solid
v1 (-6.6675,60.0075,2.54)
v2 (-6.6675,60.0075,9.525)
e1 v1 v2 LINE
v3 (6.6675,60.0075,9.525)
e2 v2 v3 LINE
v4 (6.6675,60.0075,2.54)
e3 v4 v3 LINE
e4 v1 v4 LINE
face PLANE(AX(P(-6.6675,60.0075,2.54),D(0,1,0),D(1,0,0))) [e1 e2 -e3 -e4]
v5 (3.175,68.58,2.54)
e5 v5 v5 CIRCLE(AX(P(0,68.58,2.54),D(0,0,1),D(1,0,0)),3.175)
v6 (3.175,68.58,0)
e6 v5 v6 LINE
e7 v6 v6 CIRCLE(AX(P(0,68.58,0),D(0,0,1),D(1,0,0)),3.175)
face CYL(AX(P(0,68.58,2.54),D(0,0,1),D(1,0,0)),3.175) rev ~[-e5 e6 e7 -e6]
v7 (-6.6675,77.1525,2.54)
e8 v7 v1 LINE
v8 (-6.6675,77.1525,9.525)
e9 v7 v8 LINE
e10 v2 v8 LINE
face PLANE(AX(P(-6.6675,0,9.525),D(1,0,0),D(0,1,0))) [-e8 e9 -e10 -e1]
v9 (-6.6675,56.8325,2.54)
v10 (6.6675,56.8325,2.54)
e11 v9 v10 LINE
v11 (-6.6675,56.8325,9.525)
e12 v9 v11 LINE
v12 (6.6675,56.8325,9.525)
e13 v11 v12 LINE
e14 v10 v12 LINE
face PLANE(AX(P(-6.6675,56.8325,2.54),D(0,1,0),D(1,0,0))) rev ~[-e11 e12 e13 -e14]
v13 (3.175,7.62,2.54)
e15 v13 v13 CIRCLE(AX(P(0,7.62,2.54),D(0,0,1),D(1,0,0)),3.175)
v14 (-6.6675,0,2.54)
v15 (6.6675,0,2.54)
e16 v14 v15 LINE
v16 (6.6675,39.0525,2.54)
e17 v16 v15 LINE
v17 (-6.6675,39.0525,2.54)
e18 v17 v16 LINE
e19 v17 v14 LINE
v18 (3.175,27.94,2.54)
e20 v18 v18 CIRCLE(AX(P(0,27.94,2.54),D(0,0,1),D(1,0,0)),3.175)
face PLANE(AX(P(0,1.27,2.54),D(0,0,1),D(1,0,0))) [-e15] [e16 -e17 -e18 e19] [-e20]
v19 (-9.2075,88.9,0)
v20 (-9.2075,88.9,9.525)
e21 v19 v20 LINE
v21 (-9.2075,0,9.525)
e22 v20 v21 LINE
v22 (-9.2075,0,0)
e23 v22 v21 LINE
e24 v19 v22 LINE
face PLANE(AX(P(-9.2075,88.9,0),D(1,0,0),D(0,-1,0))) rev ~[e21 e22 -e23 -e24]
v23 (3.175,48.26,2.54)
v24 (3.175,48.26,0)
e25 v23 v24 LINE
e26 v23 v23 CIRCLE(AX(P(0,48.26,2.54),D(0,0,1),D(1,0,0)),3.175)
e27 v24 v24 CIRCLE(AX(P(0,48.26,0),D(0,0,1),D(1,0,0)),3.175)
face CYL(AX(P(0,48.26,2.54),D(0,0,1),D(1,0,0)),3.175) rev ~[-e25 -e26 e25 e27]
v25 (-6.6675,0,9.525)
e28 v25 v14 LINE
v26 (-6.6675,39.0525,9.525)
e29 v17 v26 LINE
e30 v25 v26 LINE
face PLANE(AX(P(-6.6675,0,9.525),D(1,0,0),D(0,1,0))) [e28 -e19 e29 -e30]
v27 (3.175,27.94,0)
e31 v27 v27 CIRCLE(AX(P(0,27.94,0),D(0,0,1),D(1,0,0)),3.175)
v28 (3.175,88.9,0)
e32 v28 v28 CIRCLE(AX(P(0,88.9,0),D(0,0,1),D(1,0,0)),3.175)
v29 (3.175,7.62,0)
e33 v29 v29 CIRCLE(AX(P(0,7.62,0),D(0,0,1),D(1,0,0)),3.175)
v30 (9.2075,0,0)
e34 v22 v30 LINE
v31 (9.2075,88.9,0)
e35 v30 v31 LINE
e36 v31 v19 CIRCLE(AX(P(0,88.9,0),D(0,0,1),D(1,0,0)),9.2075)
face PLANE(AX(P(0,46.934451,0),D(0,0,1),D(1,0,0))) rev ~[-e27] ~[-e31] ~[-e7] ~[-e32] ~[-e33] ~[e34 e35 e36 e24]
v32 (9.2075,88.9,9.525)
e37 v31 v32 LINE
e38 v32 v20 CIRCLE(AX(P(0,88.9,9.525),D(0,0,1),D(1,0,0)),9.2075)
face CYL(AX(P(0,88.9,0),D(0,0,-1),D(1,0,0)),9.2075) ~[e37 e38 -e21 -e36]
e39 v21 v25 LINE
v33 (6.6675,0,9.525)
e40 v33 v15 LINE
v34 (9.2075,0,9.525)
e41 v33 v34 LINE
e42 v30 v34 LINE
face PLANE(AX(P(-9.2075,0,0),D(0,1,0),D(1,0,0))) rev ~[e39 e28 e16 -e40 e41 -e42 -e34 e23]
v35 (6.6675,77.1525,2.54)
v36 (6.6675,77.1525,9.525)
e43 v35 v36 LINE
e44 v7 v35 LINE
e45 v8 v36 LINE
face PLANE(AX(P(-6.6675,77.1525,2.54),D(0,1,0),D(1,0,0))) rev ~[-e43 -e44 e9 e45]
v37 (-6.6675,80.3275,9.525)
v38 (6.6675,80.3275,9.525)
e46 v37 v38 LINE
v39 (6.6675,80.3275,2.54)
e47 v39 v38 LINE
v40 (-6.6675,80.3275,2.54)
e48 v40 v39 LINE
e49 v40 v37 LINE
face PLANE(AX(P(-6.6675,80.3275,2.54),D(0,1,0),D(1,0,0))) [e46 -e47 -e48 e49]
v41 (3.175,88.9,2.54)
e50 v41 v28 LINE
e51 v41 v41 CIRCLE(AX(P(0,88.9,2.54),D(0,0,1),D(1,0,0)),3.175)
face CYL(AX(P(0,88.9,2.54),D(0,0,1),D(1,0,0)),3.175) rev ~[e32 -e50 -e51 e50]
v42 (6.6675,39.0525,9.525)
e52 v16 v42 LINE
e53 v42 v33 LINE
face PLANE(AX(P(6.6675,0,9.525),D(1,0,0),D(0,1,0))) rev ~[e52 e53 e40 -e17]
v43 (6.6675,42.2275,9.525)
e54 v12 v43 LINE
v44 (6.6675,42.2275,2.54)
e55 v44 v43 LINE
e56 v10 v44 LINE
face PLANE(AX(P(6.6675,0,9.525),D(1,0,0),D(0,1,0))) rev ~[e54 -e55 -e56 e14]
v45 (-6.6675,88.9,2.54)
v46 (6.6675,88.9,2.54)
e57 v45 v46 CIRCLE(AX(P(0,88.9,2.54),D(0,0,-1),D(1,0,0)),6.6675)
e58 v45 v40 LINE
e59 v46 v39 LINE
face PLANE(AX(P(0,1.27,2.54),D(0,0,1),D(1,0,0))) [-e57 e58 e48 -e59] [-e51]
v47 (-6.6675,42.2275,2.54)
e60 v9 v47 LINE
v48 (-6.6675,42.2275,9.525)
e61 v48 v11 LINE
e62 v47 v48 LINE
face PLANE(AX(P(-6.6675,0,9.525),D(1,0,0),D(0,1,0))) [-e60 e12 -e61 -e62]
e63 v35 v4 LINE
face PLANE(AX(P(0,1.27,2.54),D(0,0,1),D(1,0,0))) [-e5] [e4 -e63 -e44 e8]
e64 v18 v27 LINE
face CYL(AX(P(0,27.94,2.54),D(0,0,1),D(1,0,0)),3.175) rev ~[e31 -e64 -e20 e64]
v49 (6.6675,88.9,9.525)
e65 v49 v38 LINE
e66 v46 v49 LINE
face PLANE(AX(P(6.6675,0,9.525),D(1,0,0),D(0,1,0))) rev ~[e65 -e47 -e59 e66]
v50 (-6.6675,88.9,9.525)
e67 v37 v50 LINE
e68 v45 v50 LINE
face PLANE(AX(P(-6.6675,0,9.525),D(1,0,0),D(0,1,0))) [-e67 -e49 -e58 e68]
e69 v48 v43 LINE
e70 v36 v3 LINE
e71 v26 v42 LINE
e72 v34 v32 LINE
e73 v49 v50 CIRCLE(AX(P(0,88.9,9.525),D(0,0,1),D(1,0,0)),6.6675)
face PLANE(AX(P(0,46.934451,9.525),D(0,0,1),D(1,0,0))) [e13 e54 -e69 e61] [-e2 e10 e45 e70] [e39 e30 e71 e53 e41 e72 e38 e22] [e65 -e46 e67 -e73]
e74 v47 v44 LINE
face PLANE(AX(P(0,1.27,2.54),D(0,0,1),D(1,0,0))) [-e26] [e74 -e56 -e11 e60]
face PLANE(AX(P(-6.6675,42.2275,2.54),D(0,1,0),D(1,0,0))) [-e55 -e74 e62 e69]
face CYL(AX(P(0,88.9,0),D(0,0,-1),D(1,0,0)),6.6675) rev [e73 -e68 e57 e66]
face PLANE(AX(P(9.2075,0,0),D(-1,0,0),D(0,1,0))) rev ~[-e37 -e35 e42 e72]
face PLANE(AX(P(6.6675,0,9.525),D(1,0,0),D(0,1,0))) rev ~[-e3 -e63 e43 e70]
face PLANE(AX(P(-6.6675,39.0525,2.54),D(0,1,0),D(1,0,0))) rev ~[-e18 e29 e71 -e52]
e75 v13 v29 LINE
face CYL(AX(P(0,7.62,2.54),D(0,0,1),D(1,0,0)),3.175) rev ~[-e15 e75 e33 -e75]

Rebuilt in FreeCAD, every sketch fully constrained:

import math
import FreeCAD as App
import Part
import Sketcher
from FreeCAD import Vector
Q = App.Units.Quantity


def faces_at(feature, points):
    """Names of the faces that lie closest to the given points."""
    faces = feature.Shape.Faces
    near = lambda p: min(range(len(faces)), key=lambda i: faces[i].distToShape(Part.Vertex(*p))[0])
    return sorted({f"Face{near(p) + 1}" for p in points})


def add_polygon(sketch, points):
    """Adds a closed chain of lines whose ends are joined by coincident constraints."""
    first, n = sketch.GeometryCount, len(points)
    for a, b in zip(points, points[1:] + points[:1]):
        sketch.addGeometry(Part.LineSegment(App.Vector(*a, 0), App.Vector(*b, 0)), False)
    for i in range(n):
        sketch.addConstraint(Sketcher.Constraint("Coincident", first + i, 2, first + (i + 1) % n, 1))

doc = App.newDocument("Part")
body = doc.addObject("PartDesign::Body", "Body")

sketch1 = body.newObject("Sketcher::SketchObject", "Sketch")
sketch1.AttachmentSupport = (doc.getObject("XY_Plane"), [""])
sketch1.MapMode = "FlatFace"
sketch1.addGeometry(Part.LineSegment(Vector(-9, 89, 0), Vector(-9, 0, 0)), False)
sketch1.addGeometry(Part.LineSegment(Vector(-9, 0, 0), Vector(9, 0, 0)), False)
sketch1.addGeometry(Part.LineSegment(Vector(9, 0, 0), Vector(9, 89, 0)), False)
sketch1.addGeometry(Part.ArcOfCircle(Part.Circle(Vector(0, 89, 0), Vector(0, 0, 1), 9), math.radians(0), math.radians(180)), False)
sketch1.addConstraint(Sketcher.Constraint("Coincident", 0, 2, 1, 1))
sketch1.addConstraint(Sketcher.Constraint("Coincident", 1, 2, 2, 1))
sketch1.addConstraint(Sketcher.Constraint("Tangent", 2, 2, 3, 1))
sketch1.addConstraint(Sketcher.Constraint("Tangent", 3, 2, 0, 1))
sketch1.addConstraint(Sketcher.Constraint("Vertical", 0))
sketch1.addConstraint(Sketcher.Constraint("Horizontal", 1))
sketch1.addConstraint(Sketcher.Constraint("Vertical", 2))
sketch1.addConstraint(Sketcher.Constraint("Symmetric", 0, 2, 1, 2, -1, 1))
sketch1.addConstraint(Sketcher.Constraint("DistanceY", 0, 2, 0, 1, Q("3.5 in")))
sketch1.addConstraint(Sketcher.Constraint("Radius", 3, Q("0.3625 in")))
pad1 = body.newObject("PartDesign::Pad", "Pad")
pad1.Profile = sketch1
pad1.Length = Q("0.375 in")
doc.recompute()

thickness = body.newObject("PartDesign::Thickness", "Thickness")
thickness.Base = (pad1, faces_at(pad1, [(0, 49.054, 9.525)]))
thickness.Value = Q("0.1 in")
thickness.Reversed = True
thickness.Join = "Arc"

sketch2 = body.newObject("Sketcher::SketchObject", "Sketch001")
sketch2.AttachmentSupport = (doc.getObject("XY_Plane"), [""])
sketch2.MapMode = "FlatFace"
sketch2.AttachmentOffset = App.Placement(Vector(0, 0, 0.375 * 25.4), App.Rotation())
add_polygon(sketch2, [(-6.7, 2.5), (-6.7, 0), (6.7, 0), (6.7, 2.5)])
sketch2.addConstraint(Sketcher.Constraint("Vertical", 0))
sketch2.addConstraint(Sketcher.Constraint("Horizontal", 1))
sketch2.addConstraint(Sketcher.Constraint("Vertical", 2))
sketch2.addConstraint(Sketcher.Constraint("Horizontal", 3))
sketch2.addConstraint(Sketcher.Constraint("Symmetric", 0, 2, 1, 2, -1, 1))
sketch2.addConstraint(Sketcher.Constraint("DistanceY", 0, 2, 0, 1, Q("0.1 in")))
sketch2.addConstraint(Sketcher.Constraint("DistanceX", 1, 1, 1, 2, Q("0.525 in")))
pocket1 = body.newObject("PartDesign::Pocket", "Pocket")
pocket1.Profile = sketch2
pocket1.Length = Q("0.275 in")

sketch3 = body.newObject("Sketcher::SketchObject", "Sketch002")
sketch3.AttachmentSupport = (doc.getObject("XY_Plane"), [""])
sketch3.MapMode = "FlatFace"
sketch3.AttachmentOffset = App.Placement(Vector(0, 0, 0.1 * 25.4), App.Rotation())
sketch3.addGeometry(Part.Circle(Vector(0, 88.9, 0), Vector(0, 0, 1), 3.2), False)
sketch3.addGeometry(Part.Circle(Vector(0, 68.6, 0), Vector(0, 0, 1), 3.2), False)
sketch3.addGeometry(Part.Circle(Vector(0, 48.3, 0), Vector(0, 0, 1), 3.2), False)
sketch3.addGeometry(Part.Circle(Vector(0, 27.9, 0), Vector(0, 0, 1), 3.2), False)
sketch3.addGeometry(Part.Circle(Vector(0, 7.6, 0), Vector(0, 0, 1), 3.2), False)
sketch3.addConstraint(Sketcher.Constraint("Equal", 0, 1))
sketch3.addConstraint(Sketcher.Constraint("Equal", 1, 2))
sketch3.addConstraint(Sketcher.Constraint("Equal", 2, 3))
sketch3.addConstraint(Sketcher.Constraint("Equal", 3, 4))
sketch3.addConstraint(Sketcher.Constraint("PointOnObject", 0, 3, -2))
sketch3.addConstraint(Sketcher.Constraint("PointOnObject", 1, 3, -2))
sketch3.addConstraint(Sketcher.Constraint("PointOnObject", 2, 3, -2))
sketch3.addConstraint(Sketcher.Constraint("PointOnObject", 3, 3, -2))
sketch3.addConstraint(Sketcher.Constraint("PointOnObject", 4, 3, -2))
sketch3.addConstraint(Sketcher.Constraint("Diameter", 0, Q("0.25 in")))
sketch3.addConstraint(Sketcher.Constraint("DistanceY", -1, 1, 0, 3, Q("3.5 in")))
sketch3.addConstraint(Sketcher.Constraint("DistanceY", -1, 1, 1, 3, Q("2.7 in")))
sketch3.addConstraint(Sketcher.Constraint("DistanceY", -1, 1, 2, 3, Q("1.9 in")))
sketch3.addConstraint(Sketcher.Constraint("DistanceY", -1, 1, 3, 3, Q("1.1 in")))
sketch3.addConstraint(Sketcher.Constraint("DistanceY", -1, 1, 4, 3, Q("0.3 in")))
pocket2 = body.newObject("PartDesign::Pocket", "Pocket001")
pocket2.Profile = sketch3
pocket2.Type = "ThroughAll"

sketch4 = body.newObject("Sketcher::SketchObject", "Sketch003")
sketch4.AttachmentSupport = (doc.getObject("XY_Plane"), [""])
sketch4.MapMode = "FlatFace"
sketch4.AttachmentOffset = App.Placement(Vector(0, 0, 0.1 * 25.4), App.Rotation())
add_polygon(sketch4, [(-6.7, 80.3), (-6.7, 77.2), (6.7, 77.2), (6.7, 80.3)])
add_polygon(sketch4, [(-6.7, 60), (-6.7, 56.8), (6.7, 56.8), (6.7, 60)])
add_polygon(sketch4, [(-6.7, 42.2), (-6.7, 39.1), (6.7, 39.1), (6.7, 42.2)])
sketch4.addConstraint(Sketcher.Constraint("Vertical", 0))
sketch4.addConstraint(Sketcher.Constraint("Horizontal", 1))
sketch4.addConstraint(Sketcher.Constraint("Vertical", 2))
sketch4.addConstraint(Sketcher.Constraint("Horizontal", 3))
sketch4.addConstraint(Sketcher.Constraint("Vertical", 4))
sketch4.addConstraint(Sketcher.Constraint("Horizontal", 5))
sketch4.addConstraint(Sketcher.Constraint("Vertical", 6))
sketch4.addConstraint(Sketcher.Constraint("Horizontal", 7))
sketch4.addConstraint(Sketcher.Constraint("Vertical", 8))
sketch4.addConstraint(Sketcher.Constraint("Horizontal", 9))
sketch4.addConstraint(Sketcher.Constraint("Vertical", 10))
sketch4.addConstraint(Sketcher.Constraint("Horizontal", 11))
sketch4.addConstraint(Sketcher.Constraint("Vertical", 3, 2, 4, 2))
sketch4.addConstraint(Sketcher.Constraint("Vertical", 2, 2, 5, 2))
sketch4.addConstraint(Sketcher.Constraint("Vertical", 7, 2, 8, 2))
sketch4.addConstraint(Sketcher.Constraint("Vertical", 6, 2, 9, 2))
sketch4.addConstraint(Sketcher.Constraint("Equal", 2, 4))
sketch4.addConstraint(Sketcher.Constraint("Equal", 6, 8))
sketch4.addConstraint(Sketcher.Constraint("DistanceY", 4, 2, 0, 2, Q("0.8 in")))
sketch4.addConstraint(Sketcher.Constraint("DistanceY", 8, 2, 4, 2, Q("0.7 in")))
sketch4.addConstraint(Sketcher.Constraint("DistanceX", 1, 1, 1, 2, Q("0.525 in")))
sketch4.addConstraint(Sketcher.Constraint("DistanceY", 0, 2, 0, 1, Q("0.125 in")))
sketch4.addConstraint(Sketcher.Constraint("DistanceX", 0, 2, -1, 1, Q("0.2625 in")))
sketch4.addConstraint(Sketcher.Constraint("DistanceY", -1, 1, 0, 2, Q("3.0375 in")))
pad2 = body.newObject("PartDesign::Pad", "Pad001")
pad2.Profile = sketch4
pad2.Length = Q("0.275 in")

doc.recompute()
